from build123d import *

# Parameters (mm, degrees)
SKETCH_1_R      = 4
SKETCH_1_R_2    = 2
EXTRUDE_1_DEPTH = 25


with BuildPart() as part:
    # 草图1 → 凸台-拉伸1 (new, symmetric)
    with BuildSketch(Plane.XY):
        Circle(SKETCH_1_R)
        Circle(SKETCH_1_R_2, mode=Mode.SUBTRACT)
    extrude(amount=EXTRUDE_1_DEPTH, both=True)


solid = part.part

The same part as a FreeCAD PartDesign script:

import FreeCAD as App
import Part
import Sketcher
Q = App.Units.Quantity

doc = App.newDocument("Part")
body = doc.addObject("PartDesign::Body", "Body")

# Sketch on XY plane
sketch1 = body.newObject("Sketcher::SketchObject", "Sketch")
sketch1.AttachmentSupport = (doc.getObject("XY_Plane"), [""])
sketch1.MapMode = "FlatFace"
sketch1.addGeometry(Part.Circle(App.Vector(0, 0, 0), App.Vector(0, 0, 1), 4), False)
sketch1.addGeometry(Part.Circle(App.Vector(0, 0, 0), App.Vector(0, 0, 1), 2), False)
sketch1.addConstraint(Sketcher.Constraint("Coincident", 0, 3, -1, 1))
sketch1.addConstraint(Sketcher.Constraint("Coincident", 1, 3, -1, 1))
sketch1.addConstraint(Sketcher.Constraint("Diameter", 0, Q("8 mm")))
sketch1.addConstraint(Sketcher.Constraint("Diameter", 1, Q("4 mm")))
pad1 = body.newObject("PartDesign::Pad", "Pad")
pad1.Profile = sketch1
pad1.Length = 50
pad1.Midplane = True

doc.recompute()
